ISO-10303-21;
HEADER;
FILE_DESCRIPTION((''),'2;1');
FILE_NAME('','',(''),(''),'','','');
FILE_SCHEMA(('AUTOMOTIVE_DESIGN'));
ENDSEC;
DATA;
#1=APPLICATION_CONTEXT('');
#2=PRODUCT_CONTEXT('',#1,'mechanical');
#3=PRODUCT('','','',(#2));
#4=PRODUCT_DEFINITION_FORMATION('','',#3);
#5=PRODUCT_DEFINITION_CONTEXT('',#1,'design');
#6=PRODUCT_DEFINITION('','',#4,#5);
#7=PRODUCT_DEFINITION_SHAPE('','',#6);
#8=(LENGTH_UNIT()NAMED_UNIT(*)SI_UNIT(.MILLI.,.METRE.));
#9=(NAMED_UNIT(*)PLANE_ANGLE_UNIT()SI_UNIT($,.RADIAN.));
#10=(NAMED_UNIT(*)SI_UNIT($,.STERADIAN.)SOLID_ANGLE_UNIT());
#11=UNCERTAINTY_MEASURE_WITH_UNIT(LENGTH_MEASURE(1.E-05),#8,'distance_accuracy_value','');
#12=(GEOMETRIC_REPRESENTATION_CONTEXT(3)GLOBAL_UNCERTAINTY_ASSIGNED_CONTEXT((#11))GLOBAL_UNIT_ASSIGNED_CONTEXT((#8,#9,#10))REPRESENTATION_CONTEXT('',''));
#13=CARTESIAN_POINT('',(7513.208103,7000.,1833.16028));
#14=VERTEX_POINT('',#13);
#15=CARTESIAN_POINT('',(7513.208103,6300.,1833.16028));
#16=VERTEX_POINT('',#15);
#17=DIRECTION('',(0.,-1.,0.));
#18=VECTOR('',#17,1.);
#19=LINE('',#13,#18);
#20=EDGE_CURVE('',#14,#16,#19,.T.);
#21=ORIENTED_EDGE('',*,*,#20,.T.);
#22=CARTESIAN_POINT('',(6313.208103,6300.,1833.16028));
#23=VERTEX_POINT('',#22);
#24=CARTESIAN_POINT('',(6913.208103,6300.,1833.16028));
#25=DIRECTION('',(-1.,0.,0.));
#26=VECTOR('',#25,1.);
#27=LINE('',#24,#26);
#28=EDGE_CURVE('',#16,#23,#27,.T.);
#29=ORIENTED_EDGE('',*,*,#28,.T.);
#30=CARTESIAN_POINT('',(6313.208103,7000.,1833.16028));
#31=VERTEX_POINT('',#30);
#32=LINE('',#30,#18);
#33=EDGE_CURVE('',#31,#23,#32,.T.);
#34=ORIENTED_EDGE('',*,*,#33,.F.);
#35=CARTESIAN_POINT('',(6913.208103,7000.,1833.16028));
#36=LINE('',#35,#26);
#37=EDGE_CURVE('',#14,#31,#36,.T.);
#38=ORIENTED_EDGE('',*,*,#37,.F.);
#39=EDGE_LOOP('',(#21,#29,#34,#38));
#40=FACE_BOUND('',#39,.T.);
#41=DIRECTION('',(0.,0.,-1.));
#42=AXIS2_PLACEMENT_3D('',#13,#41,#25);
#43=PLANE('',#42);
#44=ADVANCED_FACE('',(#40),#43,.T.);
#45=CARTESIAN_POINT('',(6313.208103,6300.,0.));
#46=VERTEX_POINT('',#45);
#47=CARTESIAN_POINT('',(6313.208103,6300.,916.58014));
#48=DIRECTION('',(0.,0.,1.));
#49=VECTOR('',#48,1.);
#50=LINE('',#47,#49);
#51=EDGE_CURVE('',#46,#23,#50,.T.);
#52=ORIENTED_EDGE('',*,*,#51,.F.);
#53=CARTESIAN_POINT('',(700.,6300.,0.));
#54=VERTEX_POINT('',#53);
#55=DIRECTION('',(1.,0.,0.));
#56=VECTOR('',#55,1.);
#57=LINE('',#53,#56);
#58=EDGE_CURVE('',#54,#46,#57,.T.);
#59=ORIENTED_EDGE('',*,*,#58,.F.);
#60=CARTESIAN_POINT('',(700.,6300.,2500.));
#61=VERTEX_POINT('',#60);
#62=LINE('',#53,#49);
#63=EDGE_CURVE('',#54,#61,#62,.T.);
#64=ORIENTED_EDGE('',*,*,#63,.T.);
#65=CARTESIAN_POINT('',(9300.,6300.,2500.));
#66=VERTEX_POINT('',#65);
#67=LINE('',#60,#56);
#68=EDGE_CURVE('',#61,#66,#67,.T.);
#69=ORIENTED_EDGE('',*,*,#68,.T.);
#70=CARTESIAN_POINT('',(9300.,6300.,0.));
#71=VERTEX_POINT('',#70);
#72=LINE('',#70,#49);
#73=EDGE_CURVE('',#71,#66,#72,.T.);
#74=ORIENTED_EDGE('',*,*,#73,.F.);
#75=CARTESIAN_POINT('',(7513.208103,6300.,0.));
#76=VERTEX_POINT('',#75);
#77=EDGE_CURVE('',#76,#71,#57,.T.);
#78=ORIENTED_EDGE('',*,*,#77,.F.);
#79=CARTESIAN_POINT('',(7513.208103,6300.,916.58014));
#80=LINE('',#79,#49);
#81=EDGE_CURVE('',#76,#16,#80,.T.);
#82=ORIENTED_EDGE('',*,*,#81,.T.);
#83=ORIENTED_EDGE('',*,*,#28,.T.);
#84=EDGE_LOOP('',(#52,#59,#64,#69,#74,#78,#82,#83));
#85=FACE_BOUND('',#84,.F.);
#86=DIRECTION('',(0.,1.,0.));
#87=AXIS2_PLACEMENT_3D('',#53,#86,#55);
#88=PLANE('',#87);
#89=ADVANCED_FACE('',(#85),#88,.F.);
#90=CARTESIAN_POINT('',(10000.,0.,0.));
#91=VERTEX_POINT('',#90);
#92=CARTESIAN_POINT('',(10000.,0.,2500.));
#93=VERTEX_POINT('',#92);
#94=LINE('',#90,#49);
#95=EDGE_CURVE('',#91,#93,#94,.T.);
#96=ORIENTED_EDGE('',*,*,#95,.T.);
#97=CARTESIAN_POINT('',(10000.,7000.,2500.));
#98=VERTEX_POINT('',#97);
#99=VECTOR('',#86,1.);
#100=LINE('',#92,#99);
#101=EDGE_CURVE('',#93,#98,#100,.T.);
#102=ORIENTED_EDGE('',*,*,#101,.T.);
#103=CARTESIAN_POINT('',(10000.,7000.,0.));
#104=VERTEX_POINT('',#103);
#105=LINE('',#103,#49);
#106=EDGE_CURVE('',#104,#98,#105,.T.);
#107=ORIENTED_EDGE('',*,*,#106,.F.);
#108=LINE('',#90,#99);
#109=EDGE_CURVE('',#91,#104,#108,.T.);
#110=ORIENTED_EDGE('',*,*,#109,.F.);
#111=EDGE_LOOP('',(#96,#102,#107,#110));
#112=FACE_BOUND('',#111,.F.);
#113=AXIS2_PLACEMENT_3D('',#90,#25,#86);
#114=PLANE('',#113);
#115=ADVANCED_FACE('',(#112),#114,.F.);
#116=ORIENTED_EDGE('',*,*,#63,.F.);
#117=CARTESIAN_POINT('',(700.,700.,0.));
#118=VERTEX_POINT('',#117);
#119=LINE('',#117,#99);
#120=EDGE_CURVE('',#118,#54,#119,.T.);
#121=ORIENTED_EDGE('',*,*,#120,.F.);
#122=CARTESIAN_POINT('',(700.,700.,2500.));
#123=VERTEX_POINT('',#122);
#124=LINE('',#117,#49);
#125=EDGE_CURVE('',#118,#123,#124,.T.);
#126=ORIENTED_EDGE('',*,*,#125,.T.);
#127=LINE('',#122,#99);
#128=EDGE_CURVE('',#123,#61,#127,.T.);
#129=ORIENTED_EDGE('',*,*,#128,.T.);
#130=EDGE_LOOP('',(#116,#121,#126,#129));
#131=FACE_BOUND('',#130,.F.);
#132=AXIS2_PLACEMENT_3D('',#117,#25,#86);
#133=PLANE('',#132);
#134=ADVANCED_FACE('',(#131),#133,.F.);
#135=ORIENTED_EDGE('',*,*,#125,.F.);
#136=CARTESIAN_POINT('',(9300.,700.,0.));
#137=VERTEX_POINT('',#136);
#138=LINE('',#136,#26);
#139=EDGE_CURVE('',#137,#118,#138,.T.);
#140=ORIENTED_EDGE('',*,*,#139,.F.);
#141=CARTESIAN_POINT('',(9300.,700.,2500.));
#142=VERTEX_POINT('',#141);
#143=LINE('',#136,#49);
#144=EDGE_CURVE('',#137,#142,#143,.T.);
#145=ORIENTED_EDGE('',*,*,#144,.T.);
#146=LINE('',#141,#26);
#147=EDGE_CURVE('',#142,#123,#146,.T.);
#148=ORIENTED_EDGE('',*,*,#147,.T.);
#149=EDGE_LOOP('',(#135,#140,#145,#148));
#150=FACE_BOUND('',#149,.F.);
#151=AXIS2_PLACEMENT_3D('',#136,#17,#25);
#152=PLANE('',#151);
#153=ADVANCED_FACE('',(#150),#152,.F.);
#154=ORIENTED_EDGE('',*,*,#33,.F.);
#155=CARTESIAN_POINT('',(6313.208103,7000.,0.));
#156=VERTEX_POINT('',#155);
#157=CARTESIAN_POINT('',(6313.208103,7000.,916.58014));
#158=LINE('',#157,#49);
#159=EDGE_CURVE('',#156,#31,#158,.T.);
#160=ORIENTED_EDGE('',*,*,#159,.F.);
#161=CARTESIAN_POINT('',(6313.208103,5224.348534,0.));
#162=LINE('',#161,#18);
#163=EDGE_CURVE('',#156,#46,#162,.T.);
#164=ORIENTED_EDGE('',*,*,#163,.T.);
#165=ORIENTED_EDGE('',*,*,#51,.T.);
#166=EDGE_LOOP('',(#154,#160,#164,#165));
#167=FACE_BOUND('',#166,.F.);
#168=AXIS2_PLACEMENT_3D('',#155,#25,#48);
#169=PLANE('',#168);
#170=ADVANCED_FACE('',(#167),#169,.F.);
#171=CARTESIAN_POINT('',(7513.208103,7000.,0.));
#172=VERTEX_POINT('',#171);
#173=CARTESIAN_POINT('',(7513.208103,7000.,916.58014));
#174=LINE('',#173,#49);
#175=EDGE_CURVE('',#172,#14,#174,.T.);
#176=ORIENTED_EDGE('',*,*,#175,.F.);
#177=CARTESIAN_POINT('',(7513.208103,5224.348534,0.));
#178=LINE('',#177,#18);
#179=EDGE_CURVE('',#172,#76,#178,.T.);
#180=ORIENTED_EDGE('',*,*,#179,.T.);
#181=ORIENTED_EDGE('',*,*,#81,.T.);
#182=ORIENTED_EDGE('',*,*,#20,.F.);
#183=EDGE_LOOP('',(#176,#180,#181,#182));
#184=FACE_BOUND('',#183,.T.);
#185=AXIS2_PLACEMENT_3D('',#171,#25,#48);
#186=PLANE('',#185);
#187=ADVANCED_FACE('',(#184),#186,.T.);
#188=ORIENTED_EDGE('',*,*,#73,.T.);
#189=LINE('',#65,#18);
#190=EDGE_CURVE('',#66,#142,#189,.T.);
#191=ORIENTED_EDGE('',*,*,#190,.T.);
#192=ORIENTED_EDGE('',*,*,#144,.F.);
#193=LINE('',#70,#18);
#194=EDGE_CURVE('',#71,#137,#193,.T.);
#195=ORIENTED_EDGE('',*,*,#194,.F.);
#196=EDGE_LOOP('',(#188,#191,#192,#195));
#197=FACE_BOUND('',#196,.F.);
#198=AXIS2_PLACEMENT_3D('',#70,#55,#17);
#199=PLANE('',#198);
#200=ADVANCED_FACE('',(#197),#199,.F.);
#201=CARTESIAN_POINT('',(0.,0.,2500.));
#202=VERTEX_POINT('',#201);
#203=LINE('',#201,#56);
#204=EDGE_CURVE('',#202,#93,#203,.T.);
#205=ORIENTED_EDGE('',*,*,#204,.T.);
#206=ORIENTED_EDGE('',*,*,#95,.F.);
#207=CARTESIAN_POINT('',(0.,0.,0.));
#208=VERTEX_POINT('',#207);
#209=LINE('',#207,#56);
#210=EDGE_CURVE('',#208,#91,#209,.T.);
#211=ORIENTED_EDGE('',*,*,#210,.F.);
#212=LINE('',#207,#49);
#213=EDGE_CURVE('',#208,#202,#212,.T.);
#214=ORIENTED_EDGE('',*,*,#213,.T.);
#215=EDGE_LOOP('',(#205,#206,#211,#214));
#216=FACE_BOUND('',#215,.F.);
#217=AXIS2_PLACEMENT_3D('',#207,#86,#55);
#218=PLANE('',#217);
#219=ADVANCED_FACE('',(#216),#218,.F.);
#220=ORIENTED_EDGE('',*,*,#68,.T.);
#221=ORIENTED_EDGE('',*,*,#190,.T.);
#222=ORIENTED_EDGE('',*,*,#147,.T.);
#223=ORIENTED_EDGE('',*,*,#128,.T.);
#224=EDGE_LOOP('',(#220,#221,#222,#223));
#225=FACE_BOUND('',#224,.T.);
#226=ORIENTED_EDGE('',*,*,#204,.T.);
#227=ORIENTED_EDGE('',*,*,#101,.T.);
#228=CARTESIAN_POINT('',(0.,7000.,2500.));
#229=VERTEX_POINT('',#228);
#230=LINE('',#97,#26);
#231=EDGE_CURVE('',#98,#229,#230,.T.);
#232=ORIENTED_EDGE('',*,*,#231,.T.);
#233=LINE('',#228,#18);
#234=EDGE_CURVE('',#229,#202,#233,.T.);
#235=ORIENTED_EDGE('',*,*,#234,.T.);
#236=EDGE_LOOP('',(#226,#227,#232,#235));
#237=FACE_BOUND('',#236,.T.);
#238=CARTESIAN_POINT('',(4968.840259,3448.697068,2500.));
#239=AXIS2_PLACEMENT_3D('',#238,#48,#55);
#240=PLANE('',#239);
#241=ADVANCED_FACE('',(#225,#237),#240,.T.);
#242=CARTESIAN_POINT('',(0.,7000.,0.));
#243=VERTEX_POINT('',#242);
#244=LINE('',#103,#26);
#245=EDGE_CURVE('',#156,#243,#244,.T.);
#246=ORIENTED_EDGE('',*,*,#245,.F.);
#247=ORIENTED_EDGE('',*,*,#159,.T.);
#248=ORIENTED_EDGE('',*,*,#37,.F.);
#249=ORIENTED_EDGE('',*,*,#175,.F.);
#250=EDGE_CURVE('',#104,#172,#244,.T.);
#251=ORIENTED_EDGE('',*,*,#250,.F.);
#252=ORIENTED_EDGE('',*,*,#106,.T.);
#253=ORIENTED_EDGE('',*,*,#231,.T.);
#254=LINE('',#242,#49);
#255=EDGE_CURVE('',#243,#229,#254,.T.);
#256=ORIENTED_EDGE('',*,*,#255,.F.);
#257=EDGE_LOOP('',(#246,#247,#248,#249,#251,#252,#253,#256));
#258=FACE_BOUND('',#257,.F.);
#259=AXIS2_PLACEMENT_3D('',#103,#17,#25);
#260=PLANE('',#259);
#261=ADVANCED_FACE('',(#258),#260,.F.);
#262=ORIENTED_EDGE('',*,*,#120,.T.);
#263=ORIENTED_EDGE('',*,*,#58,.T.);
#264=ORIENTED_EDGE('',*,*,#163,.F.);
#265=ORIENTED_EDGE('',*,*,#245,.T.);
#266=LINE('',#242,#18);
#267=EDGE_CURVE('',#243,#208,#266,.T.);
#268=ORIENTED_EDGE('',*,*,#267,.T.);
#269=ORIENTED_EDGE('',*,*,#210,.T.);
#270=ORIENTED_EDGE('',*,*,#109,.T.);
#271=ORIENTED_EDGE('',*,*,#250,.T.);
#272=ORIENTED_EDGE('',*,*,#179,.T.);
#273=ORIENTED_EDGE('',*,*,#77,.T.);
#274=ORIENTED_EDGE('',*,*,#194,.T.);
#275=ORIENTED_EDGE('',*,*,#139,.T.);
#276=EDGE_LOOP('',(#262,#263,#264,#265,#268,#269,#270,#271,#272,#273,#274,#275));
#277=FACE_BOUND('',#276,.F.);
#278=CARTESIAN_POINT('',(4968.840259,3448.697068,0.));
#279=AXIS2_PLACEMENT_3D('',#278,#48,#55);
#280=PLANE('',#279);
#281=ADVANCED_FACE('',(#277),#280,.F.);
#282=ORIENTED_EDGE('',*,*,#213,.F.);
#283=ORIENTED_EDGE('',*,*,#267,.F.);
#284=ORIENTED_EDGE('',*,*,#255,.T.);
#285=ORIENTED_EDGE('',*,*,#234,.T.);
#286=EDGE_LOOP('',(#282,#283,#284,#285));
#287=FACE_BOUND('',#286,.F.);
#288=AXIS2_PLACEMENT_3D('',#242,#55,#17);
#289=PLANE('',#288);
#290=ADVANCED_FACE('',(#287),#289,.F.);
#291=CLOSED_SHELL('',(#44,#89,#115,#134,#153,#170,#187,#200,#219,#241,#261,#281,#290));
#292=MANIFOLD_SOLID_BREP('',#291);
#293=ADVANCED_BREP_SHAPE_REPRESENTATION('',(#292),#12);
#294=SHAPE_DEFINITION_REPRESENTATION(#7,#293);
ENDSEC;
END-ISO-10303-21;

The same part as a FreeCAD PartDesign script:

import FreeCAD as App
import Part
import Sketcher
from FreeCAD import Vector
Q = App.Units.Quantity


def add_polygon(sketch, points):
    """Adds a closed chain of lines whose ends are joined by coincident constraints."""
    first, n = sketch.GeometryCount, len(points)
    for a, b in zip(points, points[1:] + points[:1]):
        sketch.addGeometry(Part.LineSegment(App.Vector(*a, 0), App.Vector(*b, 0)), False)
    for i in range(n):
        sketch.addConstraint(Sketcher.Constraint("Coincident", first + i, 2, first + (i + 1) % n, 1))

doc = App.newDocument("Part")
body = doc.addObject("PartDesign::Body", "Body")

# Sketch on XY plane
sketch1 = doc.addObject("Sketcher::SketchObject", "Sketch")
body.addObject(sketch1)
sketch1.AttachmentSupport = (doc.XY_Plane, [""])
sketch1.MapMode = "FlatFace"
add_polygon(sketch1, [(0, 7000), (0, 0), (10000, 0), (10000, 7000)])  # lines 0-3
add_polygon(sketch1, [(9300, 6300), (9300, 700), (700, 700), (700, 6300)])  # lines 4-7
sketch1.addConstraint([
    Sketcher.Constraint("Vertical", 0),
    Sketcher.Constraint("Horizontal", 1),
    Sketcher.Constraint("Vertical", 2),
    Sketcher.Constraint("Horizontal", 3),
    Sketcher.Constraint("Vertical", 4),
    Sketcher.Constraint("Horizontal", 5),
    Sketcher.Constraint("Vertical", 6),
    Sketcher.Constraint("Horizontal", 7),
    Sketcher.Constraint("Coincident", 0, 2, -1, 1),
    Sketcher.Constraint("DistanceX", 1, 1, 1, 2, Q("10000 mm")),
    Sketcher.Constraint("DistanceX", 5, 2, 5, 1, Q("8600 mm")),
    Sketcher.Constraint("DistanceY", 0, 2, 0, 1, Q("7000 mm")),
    Sketcher.Constraint("DistanceY", 4, 2, 4, 1, Q("5600 mm")),
    Sketcher.Constraint("DistanceX", -1, 1, 4, 2, Q("9300 mm")),
    Sketcher.Constraint("DistanceY", -1, 1, 4, 2, Q("700 mm")),
])
pad1 = doc.addObject("PartDesign::Pad", "Pad")
body.addObject(pad1)
pad1.Profile = sketch1
pad1.Length = 2500

# Sketch on XZ plane
sketch2 = doc.addObject("Sketcher::SketchObject", "Sketch001")
body.addObject(sketch2)
sketch2.AttachmentSupport = (doc.XZ_Plane, [""])
sketch2.MapMode = "FlatFace"
sketch2.AttachmentOffset = App.Placement(Vector(0, 0, -7000), App.Rotation())
add_polygon(sketch2, [(7513, 1833), (7513, 0), (6313, 0), (6313, 1833)])  # lines 0-3
sketch2.addConstraint([
    Sketcher.Constraint("Vertical", 0),
    Sketcher.Constraint("Horizontal", 1),
    Sketcher.Constraint("Vertical", 2),
    Sketcher.Constraint("Horizontal", 3),
    Sketcher.Constraint("PointOnObject", 0, 2, -1),
    Sketcher.Constraint("DistanceX", 1, 2, 1, 1, Q("1200 mm")),
    Sketcher.Constraint("DistanceY", 0, 2, 0, 1, Q("1833.160281 mm")),
    Sketcher.Constraint("DistanceX", -1, 1, 0, 2, Q("7513.208103 mm")),
])
pocket1 = doc.addObject("PartDesign::Pocket", "Pocket")
body.addObject(pocket1)
pocket1.Profile = sketch2
pocket1.Length = 700
pocket1.Reversed = True

doc.recompute()
